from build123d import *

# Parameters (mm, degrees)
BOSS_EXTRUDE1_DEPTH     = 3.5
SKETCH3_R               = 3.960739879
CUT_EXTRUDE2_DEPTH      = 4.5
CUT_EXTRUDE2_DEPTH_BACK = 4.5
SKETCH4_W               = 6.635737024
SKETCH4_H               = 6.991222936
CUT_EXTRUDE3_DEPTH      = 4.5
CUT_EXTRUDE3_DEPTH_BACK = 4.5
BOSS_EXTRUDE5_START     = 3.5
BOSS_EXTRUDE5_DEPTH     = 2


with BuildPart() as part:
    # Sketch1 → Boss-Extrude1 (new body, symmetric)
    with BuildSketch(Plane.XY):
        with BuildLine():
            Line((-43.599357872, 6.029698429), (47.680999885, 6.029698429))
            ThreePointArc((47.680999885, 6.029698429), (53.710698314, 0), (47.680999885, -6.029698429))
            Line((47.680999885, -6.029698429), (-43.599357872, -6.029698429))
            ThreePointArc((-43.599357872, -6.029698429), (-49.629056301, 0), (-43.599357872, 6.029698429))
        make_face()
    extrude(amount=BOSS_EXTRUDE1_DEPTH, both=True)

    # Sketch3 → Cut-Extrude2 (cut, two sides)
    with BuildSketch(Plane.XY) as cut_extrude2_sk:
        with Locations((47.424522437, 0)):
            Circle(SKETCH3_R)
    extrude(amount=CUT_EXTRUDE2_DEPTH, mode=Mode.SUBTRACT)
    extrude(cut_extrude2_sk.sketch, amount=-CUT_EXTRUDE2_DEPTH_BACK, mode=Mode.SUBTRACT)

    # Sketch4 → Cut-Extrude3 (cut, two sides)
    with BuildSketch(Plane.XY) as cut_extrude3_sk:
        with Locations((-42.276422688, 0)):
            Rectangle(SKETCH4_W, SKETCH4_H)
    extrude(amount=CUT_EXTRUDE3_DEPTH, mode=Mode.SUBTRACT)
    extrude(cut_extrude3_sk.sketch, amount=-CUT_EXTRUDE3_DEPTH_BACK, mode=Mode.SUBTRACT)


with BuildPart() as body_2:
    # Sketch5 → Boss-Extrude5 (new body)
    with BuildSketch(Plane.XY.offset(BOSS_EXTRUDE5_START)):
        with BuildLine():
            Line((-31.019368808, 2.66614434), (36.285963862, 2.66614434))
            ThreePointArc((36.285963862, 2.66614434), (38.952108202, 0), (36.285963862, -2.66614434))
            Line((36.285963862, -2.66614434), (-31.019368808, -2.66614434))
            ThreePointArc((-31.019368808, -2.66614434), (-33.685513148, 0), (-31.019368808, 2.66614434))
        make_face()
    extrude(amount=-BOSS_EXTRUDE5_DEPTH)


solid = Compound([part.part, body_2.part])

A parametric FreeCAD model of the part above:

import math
import FreeCAD as App
import Part
import Sketcher


def add_polygon(sketch, points):
    """Adds a closed chain of lines whose ends are joined by coincident constraints."""
    first, n = sketch.GeometryCount, len(points)
    for a, b in zip(points, points[1:] + points[:1]):
        sketch.addGeometry(Part.LineSegment(App.Vector(*a, 0), App.Vector(*b, 0)), False)
    for i in range(n):
        sketch.addConstraint(Sketcher.Constraint("Coincident", first + i, 2, first + (i + 1) % n, 1))

doc = App.newDocument("Part")
params = doc.addObject("Spreadsheet::Sheet", "Params")
for row, (alias, value) in enumerate([
    ("pad1_length", "7 mm"),
    ("pad2_length", "2 mm"),
], start=1):
    params.set(f"A{row}", alias)
    params.set(f"B{row}", "=" + value)
    params.setAlias(f"B{row}", alias)

body = doc.addObject("PartDesign::Body", "Body")

# Sketch on XY plane
sketch1 = doc.addObject("Sketcher::SketchObject", "Sketch")
body.addObject(sketch1)
sketch1.AttachmentSupport = (doc.XY_Plane, [""])
sketch1.MapMode = "FlatFace"
sketch1.addGeometry(Part.LineSegment(App.Vector(48, 6, 0), App.Vector(-44, 6, 0)), False)
sketch1.addGeometry(Part.ArcOfCircle(Part.Circle(App.Vector(-44, 0, 0), App.Vector(0, 0, 1), 6), math.radians(90), math.radians(270)), False)
sketch1.addGeometry(Part.LineSegment(App.Vector(-44, -6, 0), App.Vector(48, -6, 0)), False)
sketch1.addGeometry(Part.ArcOfCircle(Part.Circle(App.Vector(48, 0, 0), App.Vector(0, 0, 1), 6), math.radians(-90), math.radians(90)), False)
sketch1.addConstraint(Sketcher.Constraint("Tangent", 0, 2, 1, 1))
sketch1.addConstraint(Sketcher.Constraint("Tangent", 1, 2, 2, 1))
sketch1.addConstraint(Sketcher.Constraint("Tangent", 2, 2, 3, 1))
sketch1.addConstraint(Sketcher.Constraint("Tangent", 3, 2, 0, 1))
sketch1.addConstraint(Sketcher.Constraint("Horizontal", 0))
sketch1.addConstraint(Sketcher.Constraint("Horizontal", 2))
sketch1.addConstraint(Sketcher.Constraint("PointOnObject", 1, 3, -1))
sketch1.addConstraint(Sketcher.Constraint("Radius", 1, 6.029698))
sketch1.addConstraint(Sketcher.Constraint("DistanceX", -1, 1, 3, 3, 47.681))
sketch1.addConstraint(Sketcher.Constraint("DistanceX", 0, 2, 0, 1, 91.280358))
pad1 = doc.addObject("PartDesign::Pad", "Pad")
body.addObject(pad1)
pad1.Profile = sketch1
pad1.setExpression("Length", "Params.pad1_length")
pad1.Midplane = True

# Sketch on XY plane
sketch2 = doc.addObject("Sketcher::SketchObject", "Sketch001")
body.addObject(sketch2)
sketch2.AttachmentSupport = (doc.XY_Plane, [""])
sketch2.MapMode = "FlatFace"
sketch2.addGeometry(Part.Circle(App.Vector(47.4, 0, 0), App.Vector(0, 0, 1), 4), False)
sketch2.addConstraint(Sketcher.Constraint("PointOnObject", 0, 3, -1))
sketch2.addConstraint(Sketcher.Constraint("Diameter", 0, 7.92148))
sketch2.addConstraint(Sketcher.Constraint("DistanceX", -1, 1, 0, 3, 47.424522))
pocket1 = doc.addObject("PartDesign::Pocket", "Pocket")
body.addObject(pocket1)
pocket1.Profile = sketch2
pocket1.Type = "ThroughAll"
pocket1.Midplane = True

# Sketch on XY plane
sketch3 = doc.addObject("Sketcher::SketchObject", "Sketch002")
body.addObject(sketch3)
sketch3.AttachmentSupport = (doc.XY_Plane, [""])
sketch3.MapMode = "FlatFace"
add_polygon(sketch3, [(-46, 3), (-46, -3), (-39, -3), (-39, 3)])  # lines 0-3
sketch3.addConstraint(Sketcher.Constraint("Vertical", 0))
sketch3.addConstraint(Sketcher.Constraint("Horizontal", 1))
sketch3.addConstraint(Sketcher.Constraint("Vertical", 2))
sketch3.addConstraint(Sketcher.Constraint("Horizontal", 3))
sketch3.addConstraint(Sketcher.Constraint("DistanceX", 1, 1, 1, 2, 6.635737))
sketch3.addConstraint(Sketcher.Constraint("DistanceY", 0, 2, 0, 1, 6.991223))
sketch3.addConstraint(Sketcher.Constraint("DistanceX", 0, 2, -1, 1, 45.594291))
sketch3.addConstraint(Sketcher.Constraint("DistanceY", 0, 2, -1, 1, 3.495611))
pocket2 = doc.addObject("PartDesign::Pocket", "Pocket001")
body.addObject(pocket2)
pocket2.Profile = sketch3
pocket2.Type = "ThroughAll"
pocket2.Midplane = True
body2 = doc.addObject("PartDesign::Body", "Body001")

# Sketch on XY plane
sketch4 = doc.addObject("Sketcher::SketchObject", "Sketch003")
body2.addObject(sketch4)
sketch4.AttachmentSupport = (doc.getObject("XY_Plane001"), [""])
sketch4.MapMode = "FlatFace"
sketch4.AttachmentOffset = App.Placement(App.Vector(0, 0, 3.5), App.Rotation())
sketch4.addGeometry(Part.LineSegment(App.Vector(36.3, 2.7, 0), App.Vector(-31, 2.7, 0)), False)
sketch4.addGeometry(Part.ArcOfCircle(Part.Circle(App.Vector(-31, 0, 0), App.Vector(0, 0, 1), 2.7), math.radians(90), math.radians(270)), False)
sketch4.addGeometry(Part.LineSegment(App.Vector(-31, -2.7, 0), App.Vector(36.3, -2.7, 0)), False)
sketch4.addGeometry(Part.ArcOfCircle(Part.Circle(App.Vector(36.3, 0, 0), App.Vector(0, 0, 1), 2.7), math.radians(-90), math.radians(90)), False)
sketch4.addConstraint(Sketcher.Constraint("Tangent", 0, 2, 1, 1))
sketch4.addConstraint(Sketcher.Constraint("Tangent", 1, 2, 2, 1))
sketch4.addConstraint(Sketcher.Constraint("Tangent", 2, 2, 3, 1))
sketch4.addConstraint(Sketcher.Constraint("Tangent", 3, 2, 0, 1))
sketch4.addConstraint(Sketcher.Constraint("Horizontal", 0))
sketch4.addConstraint(Sketcher.Constraint("Horizontal", 2))
sketch4.addConstraint(Sketcher.Constraint("PointOnObject", 1, 3, -1))
sketch4.addConstraint(Sketcher.Constraint("Radius", 1, 2.666144))
sketch4.addConstraint(Sketcher.Constraint("DistanceX", 0, 2, 0, 1, 67.305333))
sketch4.addConstraint(Sketcher.Constraint("DistanceX", 1, 3, -1, 1, 31.019369))
pad2 = doc.addObject("PartDesign::Pad", "Pad001")
body2.addObject(pad2)
pad2.Profile = sketch4
pad2.setExpression("Length", "Params.pad2_length")
pad2.Reversed = True

doc.recompute()
